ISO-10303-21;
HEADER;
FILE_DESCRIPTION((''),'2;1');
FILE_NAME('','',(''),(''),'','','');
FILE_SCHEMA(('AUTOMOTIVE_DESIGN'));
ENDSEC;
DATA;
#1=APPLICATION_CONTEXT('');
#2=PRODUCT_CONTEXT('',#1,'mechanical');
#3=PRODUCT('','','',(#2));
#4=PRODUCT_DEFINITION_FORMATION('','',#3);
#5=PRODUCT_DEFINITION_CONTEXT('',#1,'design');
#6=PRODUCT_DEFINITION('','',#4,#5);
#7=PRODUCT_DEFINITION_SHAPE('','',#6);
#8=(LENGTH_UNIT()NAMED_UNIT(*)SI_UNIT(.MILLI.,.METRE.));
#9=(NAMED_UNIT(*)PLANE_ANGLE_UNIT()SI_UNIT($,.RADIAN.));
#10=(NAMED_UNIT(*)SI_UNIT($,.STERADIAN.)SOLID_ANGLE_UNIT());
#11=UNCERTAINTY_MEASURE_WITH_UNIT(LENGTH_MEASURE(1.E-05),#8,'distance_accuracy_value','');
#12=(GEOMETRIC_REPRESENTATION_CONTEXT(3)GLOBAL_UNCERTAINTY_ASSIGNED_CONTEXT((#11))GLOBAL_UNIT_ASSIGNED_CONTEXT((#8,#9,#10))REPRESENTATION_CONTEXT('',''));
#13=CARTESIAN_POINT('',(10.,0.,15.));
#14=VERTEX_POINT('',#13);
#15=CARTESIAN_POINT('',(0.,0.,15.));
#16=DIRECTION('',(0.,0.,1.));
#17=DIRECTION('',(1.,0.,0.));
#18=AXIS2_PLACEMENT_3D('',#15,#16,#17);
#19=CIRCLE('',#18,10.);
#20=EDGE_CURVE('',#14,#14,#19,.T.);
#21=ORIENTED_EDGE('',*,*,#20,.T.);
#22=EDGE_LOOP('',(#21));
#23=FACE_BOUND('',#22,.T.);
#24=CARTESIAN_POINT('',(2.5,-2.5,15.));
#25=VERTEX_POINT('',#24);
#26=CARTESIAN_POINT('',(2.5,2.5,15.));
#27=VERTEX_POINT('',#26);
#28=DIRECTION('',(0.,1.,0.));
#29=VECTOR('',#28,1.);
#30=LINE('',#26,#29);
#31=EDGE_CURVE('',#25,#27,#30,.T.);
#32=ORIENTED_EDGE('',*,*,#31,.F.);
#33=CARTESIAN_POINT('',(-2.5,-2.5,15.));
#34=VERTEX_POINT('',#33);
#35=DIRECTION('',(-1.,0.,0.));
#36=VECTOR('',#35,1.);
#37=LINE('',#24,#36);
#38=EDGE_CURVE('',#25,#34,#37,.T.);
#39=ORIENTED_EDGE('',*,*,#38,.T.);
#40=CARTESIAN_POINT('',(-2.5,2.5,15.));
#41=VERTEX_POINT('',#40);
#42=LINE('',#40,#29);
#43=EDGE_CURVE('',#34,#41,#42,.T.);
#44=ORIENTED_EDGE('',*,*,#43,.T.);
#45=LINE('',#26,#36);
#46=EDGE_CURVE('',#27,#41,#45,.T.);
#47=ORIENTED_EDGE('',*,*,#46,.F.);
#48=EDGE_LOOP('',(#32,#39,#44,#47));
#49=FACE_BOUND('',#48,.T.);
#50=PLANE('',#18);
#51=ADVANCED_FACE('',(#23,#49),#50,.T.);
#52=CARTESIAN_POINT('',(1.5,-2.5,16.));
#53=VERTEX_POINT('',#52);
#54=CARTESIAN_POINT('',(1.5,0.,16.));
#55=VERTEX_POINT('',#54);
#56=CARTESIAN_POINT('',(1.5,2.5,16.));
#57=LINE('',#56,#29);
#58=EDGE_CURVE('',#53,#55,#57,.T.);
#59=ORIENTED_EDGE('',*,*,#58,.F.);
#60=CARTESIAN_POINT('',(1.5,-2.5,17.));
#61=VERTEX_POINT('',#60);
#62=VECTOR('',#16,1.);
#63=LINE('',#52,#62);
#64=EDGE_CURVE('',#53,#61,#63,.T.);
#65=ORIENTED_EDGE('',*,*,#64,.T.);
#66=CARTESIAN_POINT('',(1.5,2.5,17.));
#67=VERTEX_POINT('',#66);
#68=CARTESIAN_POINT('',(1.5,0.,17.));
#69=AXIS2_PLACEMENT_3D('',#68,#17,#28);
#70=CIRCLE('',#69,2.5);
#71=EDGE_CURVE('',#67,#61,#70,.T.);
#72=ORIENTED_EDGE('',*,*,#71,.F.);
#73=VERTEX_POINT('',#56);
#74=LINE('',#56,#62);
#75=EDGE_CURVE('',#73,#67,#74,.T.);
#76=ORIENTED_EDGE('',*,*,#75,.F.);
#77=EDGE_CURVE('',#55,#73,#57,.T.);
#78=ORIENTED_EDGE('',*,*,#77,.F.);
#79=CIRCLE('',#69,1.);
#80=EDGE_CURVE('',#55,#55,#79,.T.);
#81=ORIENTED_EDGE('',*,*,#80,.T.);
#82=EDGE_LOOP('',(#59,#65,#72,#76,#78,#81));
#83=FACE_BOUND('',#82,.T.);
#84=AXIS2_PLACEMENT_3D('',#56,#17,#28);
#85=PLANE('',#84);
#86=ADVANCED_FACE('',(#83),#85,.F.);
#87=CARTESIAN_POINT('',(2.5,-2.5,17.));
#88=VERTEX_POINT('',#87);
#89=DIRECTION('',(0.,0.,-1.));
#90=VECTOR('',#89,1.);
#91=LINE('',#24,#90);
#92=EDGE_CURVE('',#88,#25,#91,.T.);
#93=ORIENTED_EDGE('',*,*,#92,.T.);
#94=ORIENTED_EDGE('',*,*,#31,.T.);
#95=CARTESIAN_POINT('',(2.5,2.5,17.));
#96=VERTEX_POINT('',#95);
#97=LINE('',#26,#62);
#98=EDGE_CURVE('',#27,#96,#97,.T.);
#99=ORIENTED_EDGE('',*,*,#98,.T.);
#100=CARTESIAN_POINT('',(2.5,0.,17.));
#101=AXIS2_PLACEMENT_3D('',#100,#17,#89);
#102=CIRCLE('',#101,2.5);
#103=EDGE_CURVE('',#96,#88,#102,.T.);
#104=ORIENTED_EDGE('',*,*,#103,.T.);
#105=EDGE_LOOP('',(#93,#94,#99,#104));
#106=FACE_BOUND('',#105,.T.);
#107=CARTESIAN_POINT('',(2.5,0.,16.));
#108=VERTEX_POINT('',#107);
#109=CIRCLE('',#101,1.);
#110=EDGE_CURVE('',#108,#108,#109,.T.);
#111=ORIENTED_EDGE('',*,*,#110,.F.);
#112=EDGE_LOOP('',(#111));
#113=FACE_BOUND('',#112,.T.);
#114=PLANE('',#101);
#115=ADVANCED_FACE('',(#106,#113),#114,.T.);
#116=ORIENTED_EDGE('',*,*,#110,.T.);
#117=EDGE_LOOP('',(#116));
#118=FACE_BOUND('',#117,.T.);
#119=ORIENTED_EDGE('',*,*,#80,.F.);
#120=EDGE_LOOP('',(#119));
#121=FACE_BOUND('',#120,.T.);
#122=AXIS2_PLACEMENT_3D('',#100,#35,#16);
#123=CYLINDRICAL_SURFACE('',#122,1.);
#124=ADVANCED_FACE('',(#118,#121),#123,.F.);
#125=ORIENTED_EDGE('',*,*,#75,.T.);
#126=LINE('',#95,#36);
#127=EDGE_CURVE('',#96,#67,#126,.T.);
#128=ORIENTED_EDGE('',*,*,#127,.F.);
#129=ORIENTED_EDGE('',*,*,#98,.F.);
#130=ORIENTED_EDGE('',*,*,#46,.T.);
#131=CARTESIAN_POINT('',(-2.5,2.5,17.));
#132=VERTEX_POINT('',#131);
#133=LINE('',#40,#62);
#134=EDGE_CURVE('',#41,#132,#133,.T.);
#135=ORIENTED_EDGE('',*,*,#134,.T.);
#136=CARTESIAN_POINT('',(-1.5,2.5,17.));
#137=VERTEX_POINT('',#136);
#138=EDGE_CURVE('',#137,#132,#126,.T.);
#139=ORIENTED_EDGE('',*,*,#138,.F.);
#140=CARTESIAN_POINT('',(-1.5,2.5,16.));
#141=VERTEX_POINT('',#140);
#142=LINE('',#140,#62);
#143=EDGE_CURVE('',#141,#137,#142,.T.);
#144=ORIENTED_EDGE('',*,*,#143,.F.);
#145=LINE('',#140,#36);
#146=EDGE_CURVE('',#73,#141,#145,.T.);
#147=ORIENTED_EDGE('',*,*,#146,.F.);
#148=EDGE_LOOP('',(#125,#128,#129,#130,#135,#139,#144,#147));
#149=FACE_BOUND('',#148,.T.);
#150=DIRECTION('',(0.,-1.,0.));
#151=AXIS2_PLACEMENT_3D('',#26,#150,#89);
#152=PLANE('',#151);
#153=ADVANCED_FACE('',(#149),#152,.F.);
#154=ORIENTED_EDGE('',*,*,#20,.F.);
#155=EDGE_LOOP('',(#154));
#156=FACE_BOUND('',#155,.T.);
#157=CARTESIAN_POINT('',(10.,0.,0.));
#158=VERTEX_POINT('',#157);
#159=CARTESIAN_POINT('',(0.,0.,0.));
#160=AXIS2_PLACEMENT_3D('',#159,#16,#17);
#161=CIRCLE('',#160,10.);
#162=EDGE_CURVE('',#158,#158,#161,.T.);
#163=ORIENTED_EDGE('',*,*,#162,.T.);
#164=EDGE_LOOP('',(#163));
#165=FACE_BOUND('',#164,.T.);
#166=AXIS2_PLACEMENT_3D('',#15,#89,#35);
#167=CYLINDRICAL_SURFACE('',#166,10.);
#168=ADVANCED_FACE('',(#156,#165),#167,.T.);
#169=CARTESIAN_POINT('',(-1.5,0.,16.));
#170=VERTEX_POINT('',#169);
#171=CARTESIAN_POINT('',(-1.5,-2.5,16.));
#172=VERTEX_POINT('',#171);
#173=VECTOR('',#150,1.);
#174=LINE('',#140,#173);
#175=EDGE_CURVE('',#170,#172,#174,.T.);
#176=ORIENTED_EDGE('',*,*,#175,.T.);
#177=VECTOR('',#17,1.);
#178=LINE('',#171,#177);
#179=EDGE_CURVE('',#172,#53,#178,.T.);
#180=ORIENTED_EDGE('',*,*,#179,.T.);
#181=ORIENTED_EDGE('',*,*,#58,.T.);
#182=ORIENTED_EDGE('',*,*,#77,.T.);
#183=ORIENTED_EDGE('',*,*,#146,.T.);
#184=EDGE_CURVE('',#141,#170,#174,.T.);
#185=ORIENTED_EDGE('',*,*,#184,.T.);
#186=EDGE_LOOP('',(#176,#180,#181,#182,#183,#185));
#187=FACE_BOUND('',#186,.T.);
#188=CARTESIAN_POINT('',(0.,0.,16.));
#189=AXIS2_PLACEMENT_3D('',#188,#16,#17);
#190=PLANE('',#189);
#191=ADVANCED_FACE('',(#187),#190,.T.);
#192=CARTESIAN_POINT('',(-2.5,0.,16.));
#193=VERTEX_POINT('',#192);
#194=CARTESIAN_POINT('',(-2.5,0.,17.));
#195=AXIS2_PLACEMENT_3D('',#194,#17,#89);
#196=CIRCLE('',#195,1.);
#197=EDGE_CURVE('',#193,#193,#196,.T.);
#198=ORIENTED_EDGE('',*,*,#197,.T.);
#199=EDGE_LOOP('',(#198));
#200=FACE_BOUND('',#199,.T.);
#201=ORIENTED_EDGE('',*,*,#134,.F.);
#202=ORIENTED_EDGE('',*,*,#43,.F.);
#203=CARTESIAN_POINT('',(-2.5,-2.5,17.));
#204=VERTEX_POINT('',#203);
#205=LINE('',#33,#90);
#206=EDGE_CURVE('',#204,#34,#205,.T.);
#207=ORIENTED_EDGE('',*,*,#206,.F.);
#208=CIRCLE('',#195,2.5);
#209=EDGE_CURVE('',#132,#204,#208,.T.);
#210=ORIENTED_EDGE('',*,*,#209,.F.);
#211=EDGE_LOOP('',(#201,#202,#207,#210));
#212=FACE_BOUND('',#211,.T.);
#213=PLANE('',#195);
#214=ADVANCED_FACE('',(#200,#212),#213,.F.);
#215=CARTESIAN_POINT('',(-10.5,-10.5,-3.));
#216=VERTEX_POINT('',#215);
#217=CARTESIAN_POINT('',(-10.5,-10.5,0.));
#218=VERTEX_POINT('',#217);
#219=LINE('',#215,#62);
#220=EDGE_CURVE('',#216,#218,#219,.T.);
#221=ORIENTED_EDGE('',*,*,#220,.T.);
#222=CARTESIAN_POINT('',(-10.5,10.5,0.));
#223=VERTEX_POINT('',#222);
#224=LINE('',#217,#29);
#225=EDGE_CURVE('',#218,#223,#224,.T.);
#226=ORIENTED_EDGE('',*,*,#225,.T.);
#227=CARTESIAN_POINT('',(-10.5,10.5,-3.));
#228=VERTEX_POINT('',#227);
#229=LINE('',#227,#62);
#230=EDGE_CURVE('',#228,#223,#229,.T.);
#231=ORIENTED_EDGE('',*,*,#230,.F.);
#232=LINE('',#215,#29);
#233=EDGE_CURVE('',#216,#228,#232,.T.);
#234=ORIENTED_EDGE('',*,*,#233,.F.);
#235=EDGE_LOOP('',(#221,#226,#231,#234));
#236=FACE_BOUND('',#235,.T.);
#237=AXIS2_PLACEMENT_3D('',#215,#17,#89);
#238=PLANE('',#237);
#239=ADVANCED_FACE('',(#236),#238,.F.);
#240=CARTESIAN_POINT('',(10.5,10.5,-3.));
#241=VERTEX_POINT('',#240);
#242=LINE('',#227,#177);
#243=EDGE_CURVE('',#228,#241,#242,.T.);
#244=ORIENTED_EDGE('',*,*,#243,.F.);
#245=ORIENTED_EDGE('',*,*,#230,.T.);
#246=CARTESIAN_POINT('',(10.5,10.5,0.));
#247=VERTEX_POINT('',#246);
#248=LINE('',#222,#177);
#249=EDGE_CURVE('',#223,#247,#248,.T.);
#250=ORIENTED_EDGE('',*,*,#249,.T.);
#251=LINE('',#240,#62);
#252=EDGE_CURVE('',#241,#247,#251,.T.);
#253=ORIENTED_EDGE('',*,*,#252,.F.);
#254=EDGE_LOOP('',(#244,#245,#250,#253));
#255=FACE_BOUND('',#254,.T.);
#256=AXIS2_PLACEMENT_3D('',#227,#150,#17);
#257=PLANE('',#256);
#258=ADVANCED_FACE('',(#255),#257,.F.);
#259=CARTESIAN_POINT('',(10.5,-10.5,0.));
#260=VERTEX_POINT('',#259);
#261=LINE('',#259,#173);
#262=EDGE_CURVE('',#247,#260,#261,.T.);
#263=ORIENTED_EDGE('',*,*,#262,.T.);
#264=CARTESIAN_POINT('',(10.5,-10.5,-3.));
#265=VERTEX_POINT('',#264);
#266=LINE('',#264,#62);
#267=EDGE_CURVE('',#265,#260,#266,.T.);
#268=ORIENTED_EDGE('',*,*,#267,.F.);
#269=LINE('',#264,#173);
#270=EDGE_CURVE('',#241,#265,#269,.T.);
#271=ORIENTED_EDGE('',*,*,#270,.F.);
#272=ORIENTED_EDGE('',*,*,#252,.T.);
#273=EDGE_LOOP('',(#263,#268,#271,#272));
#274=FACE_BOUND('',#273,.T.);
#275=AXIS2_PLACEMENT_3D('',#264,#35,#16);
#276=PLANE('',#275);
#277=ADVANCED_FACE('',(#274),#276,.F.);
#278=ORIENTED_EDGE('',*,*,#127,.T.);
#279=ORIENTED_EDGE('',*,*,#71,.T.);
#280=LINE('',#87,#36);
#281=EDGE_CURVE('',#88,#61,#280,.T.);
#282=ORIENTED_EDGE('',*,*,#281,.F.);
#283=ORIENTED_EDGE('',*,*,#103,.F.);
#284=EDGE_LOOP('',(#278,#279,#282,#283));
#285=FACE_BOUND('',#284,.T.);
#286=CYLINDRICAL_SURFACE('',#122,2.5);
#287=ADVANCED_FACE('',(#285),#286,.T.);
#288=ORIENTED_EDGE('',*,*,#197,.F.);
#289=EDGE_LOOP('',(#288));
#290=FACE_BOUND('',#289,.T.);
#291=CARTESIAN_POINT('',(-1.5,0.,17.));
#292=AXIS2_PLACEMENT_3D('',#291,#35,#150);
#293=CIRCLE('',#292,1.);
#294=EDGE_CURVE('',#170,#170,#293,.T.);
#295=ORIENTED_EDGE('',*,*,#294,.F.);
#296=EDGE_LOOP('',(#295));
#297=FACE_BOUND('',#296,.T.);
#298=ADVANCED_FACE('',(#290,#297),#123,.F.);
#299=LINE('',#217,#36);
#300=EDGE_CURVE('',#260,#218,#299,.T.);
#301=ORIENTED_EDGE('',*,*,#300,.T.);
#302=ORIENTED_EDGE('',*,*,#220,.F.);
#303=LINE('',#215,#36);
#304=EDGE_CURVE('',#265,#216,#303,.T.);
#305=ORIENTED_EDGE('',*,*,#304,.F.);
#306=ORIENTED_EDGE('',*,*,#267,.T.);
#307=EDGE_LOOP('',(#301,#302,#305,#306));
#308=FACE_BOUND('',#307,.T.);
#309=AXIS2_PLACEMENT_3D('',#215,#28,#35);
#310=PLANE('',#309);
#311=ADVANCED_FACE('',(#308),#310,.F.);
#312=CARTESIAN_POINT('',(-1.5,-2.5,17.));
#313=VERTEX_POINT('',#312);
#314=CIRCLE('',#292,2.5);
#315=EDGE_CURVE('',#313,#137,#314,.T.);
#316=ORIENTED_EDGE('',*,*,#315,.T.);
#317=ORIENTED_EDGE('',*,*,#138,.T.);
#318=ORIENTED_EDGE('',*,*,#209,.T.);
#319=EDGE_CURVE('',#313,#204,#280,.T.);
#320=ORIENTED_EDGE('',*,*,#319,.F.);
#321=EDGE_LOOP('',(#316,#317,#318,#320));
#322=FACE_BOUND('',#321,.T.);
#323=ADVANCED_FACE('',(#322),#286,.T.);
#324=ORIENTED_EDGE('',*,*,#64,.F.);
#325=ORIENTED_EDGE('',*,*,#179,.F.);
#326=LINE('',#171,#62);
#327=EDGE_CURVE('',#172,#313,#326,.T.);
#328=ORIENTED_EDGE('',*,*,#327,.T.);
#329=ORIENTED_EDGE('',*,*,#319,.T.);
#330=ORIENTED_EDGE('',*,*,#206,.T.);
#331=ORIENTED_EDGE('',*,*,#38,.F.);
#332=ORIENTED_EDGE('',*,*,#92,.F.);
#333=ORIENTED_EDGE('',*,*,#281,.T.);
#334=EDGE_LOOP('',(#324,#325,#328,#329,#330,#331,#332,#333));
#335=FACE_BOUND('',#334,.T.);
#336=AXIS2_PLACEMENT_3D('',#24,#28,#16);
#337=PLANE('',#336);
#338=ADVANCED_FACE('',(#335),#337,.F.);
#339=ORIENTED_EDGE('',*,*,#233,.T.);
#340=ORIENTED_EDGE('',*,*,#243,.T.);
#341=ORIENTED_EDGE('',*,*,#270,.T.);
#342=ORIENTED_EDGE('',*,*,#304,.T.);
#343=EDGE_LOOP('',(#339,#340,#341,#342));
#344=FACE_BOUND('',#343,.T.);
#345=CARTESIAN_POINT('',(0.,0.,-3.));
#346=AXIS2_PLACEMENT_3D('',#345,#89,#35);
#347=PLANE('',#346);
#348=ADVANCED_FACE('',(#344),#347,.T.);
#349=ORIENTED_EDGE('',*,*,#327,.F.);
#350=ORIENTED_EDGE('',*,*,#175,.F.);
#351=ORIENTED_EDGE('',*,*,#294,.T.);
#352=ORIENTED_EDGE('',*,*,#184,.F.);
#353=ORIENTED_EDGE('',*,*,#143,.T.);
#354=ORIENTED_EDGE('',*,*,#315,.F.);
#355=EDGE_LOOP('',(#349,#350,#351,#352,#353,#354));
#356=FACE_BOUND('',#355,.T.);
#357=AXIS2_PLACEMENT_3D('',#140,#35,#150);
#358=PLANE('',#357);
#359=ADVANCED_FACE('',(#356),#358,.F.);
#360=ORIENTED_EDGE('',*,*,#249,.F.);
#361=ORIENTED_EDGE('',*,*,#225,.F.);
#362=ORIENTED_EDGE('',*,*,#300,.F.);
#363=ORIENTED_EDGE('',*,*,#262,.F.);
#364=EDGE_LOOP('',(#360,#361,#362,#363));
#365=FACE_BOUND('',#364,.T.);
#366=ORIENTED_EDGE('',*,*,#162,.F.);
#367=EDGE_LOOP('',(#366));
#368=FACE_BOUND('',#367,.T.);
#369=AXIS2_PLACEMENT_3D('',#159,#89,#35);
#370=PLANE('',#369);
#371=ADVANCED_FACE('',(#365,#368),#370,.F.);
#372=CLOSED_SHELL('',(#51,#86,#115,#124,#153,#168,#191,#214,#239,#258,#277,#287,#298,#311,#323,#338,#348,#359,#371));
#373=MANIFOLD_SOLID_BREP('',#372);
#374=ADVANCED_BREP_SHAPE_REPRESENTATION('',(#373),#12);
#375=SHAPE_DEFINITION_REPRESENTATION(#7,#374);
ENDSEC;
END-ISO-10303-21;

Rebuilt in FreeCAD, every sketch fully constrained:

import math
import FreeCAD as App
import Part
import Sketcher
from FreeCAD import Vector
Q = App.Units.Quantity


def add_polygon(sketch, points):
    """Adds a closed chain of lines whose ends are joined by coincident constraints."""
    first, n = sketch.GeometryCount, len(points)
    for a, b in zip(points, points[1:] + points[:1]):
        sketch.addGeometry(Part.LineSegment(App.Vector(*a, 0), App.Vector(*b, 0)), False)
    for i in range(n):
        sketch.addConstraint(Sketcher.Constraint("Coincident", first + i, 2, first + (i + 1) % n, 1))

doc = App.newDocument("Part")
params = doc.addObject("Spreadsheet::Sheet", "Params")
for row, (alias, value) in enumerate([
    ("sketch1_diameter", "20 mm"),
    ("pad1_length", "15 mm"),
    ("sketch2_width", "21 mm"),
    ("pad2_length", "3 mm"),
    ("sketch3_diameter", "2 mm"),
    ("sketch3_radius", "2.5 mm"),
    ("sketch3_height", "2 mm"),
    ("pad3_length", "5 mm"),
    ("sketch4_width", "3 mm"),
    ("sketch4_height", "5 mm"),
    ("pocket1_length", "3.5 mm"),
], start=1):
    params.set(f"A{row}", alias)
    params.set(f"B{row}", "=" + value)
    params.setAlias(f"B{row}", alias)

body = doc.addObject("PartDesign::Body", "Body")

# Sketch on XY plane
sketch1 = body.newObject("Sketcher::SketchObject", "Sketch")
sketch1.AttachmentSupport = (doc.getObject("XY_Plane"), [""])
sketch1.MapMode = "FlatFace"
sketch1.addGeometry(Part.Circle(Vector(0, 0, 0), Vector(0, 0, 1), 10), False)
sketch1.addConstraint([
    Sketcher.Constraint("Coincident", 0, 3, -1, 1),
    Sketcher.Constraint("Diameter", 0, Q("20 mm")),
])
sketch1.setExpression("Constraints[1]", "Params.sketch1_diameter")
pad1 = body.newObject("PartDesign::Pad", "Pad")
pad1.Profile = sketch1
pad1.setExpression("Length", "Params.pad1_length")

# Sketch on XY plane
sketch2 = body.newObject("Sketcher::SketchObject", "Sketch001")
sketch2.AttachmentSupport = (doc.getObject("XY_Plane"), [""])
sketch2.MapMode = "FlatFace"
add_polygon(sketch2, [(10, 10), (10, -10), (-10, -10), (-10, 10)])  # lines 0-3
sketch2.addConstraint([
    Sketcher.Constraint("Vertical", 0),
    Sketcher.Constraint("Horizontal", 1),
    Sketcher.Constraint("Vertical", 2),
    Sketcher.Constraint("Horizontal", 3),
    Sketcher.Constraint("Symmetric", 0, 2, 2, 2, -1, 1),
    Sketcher.Constraint("Equal", 3, 0),
    Sketcher.Constraint("DistanceX", 1, 2, 1, 1, Q("21 mm")),
])
sketch2.setExpression("Constraints[10]", "Params.sketch2_width")
pad2 = body.newObject("PartDesign::Pad", "Pad001")
pad2.Profile = sketch2
pad2.setExpression("Length", "Params.pad2_length")
pad2.Reversed = True

# Sketch on YZ plane
sketch3 = body.newObject("Sketcher::SketchObject", "Sketch002")
sketch3.AttachmentSupport = (doc.getObject("YZ_Plane"), [""])
sketch3.MapMode = "FlatFace"
sketch3.addGeometry([
    Part.LineSegment(Vector(-2.5, 15, 0), Vector(2.5, 15, 0)),  # 0
    Part.LineSegment(Vector(2.5, 15, 0), Vector(2.5, 17, 0)),  # 1
    Part.ArcOfCircle(Part.Circle(Vector(0, 17, 0), Vector(0, 0, 1), 2.5), math.radians(0), math.radians(180)),  # 2
    Part.LineSegment(Vector(-2.5, 17, 0), Vector(-2.5, 15, 0)),  # 3
    Part.Circle(Vector(0, 17, 0), Vector(0, 0, 1), 1),  # 4
], False)
sketch3.addConstraint([
    Sketcher.Constraint("Coincident", 0, 2, 1, 1),
    Sketcher.Constraint("Tangent", 1, 2, 2, 1),
    Sketcher.Constraint("Tangent", 2, 2, 3, 1),
    Sketcher.Constraint("Coincident", 3, 2, 0, 1),
    Sketcher.Constraint("Horizontal", 0),
    Sketcher.Constraint("Vertical", 1),
    Sketcher.Constraint("Vertical", 3),
    Sketcher.Constraint("Coincident", 4, 3, 2, 3),
    Sketcher.Constraint("PointOnObject", 2, 3, -2),
    Sketcher.Constraint("Diameter", 4, Q("2 mm")),
    Sketcher.Constraint("Radius", 2, Q("2.5 mm")),
    Sketcher.Constraint("DistanceY", 1, 1, 1, 2, Q("2 mm")),
    Sketcher.Constraint("DistanceY", -1, 1, 2, 3, Q("17 mm")),
])
sketch3.setExpression("Constraints[9]", "Params.sketch3_diameter")
sketch3.setExpression("Constraints[10]", "Params.sketch3_radius")
sketch3.setExpression("Constraints[11]", "Params.sketch3_height")
pad3 = body.newObject("PartDesign::Pad", "Pad002")
pad3.Profile = sketch3
pad3.setExpression("Length", "Params.pad3_length")
pad3.Midplane = True

# Sketch on XY plane
sketch4 = body.newObject("Sketcher::SketchObject", "Sketch003")
sketch4.AttachmentSupport = (doc.getObject("XY_Plane"), [""])
sketch4.MapMode = "FlatFace"
sketch4.AttachmentOffset = App.Placement(Vector(0, 0, 19.5), App.Rotation())
add_polygon(sketch4, [(-1.5, 2.5), (-1.5, -2.5), (1.5, -2.5), (1.5, 2.5)])  # lines 0-3
sketch4.addConstraint([
    Sketcher.Constraint("Vertical", 0),
    Sketcher.Constraint("Horizontal", 1),
    Sketcher.Constraint("Vertical", 2),
    Sketcher.Constraint("Horizontal", 3),
    Sketcher.Constraint("Symmetric", 0, 2, 2, 2, -1, 1),
    Sketcher.Constraint("DistanceX", 1, 1, 1, 2, Q("3 mm")),
    Sketcher.Constraint("DistanceY", 0, 2, 0, 1, Q("5 mm")),
])
sketch4.setExpression("Constraints[9]", "Params.sketch4_width")
sketch4.setExpression("Constraints[10]", "Params.sketch4_height")
pocket1 = body.newObject("PartDesign::Pocket", "Pocket")
pocket1.Profile = sketch4
pocket1.setExpression("Length", "Params.pocket1_length")

doc.recompute()
